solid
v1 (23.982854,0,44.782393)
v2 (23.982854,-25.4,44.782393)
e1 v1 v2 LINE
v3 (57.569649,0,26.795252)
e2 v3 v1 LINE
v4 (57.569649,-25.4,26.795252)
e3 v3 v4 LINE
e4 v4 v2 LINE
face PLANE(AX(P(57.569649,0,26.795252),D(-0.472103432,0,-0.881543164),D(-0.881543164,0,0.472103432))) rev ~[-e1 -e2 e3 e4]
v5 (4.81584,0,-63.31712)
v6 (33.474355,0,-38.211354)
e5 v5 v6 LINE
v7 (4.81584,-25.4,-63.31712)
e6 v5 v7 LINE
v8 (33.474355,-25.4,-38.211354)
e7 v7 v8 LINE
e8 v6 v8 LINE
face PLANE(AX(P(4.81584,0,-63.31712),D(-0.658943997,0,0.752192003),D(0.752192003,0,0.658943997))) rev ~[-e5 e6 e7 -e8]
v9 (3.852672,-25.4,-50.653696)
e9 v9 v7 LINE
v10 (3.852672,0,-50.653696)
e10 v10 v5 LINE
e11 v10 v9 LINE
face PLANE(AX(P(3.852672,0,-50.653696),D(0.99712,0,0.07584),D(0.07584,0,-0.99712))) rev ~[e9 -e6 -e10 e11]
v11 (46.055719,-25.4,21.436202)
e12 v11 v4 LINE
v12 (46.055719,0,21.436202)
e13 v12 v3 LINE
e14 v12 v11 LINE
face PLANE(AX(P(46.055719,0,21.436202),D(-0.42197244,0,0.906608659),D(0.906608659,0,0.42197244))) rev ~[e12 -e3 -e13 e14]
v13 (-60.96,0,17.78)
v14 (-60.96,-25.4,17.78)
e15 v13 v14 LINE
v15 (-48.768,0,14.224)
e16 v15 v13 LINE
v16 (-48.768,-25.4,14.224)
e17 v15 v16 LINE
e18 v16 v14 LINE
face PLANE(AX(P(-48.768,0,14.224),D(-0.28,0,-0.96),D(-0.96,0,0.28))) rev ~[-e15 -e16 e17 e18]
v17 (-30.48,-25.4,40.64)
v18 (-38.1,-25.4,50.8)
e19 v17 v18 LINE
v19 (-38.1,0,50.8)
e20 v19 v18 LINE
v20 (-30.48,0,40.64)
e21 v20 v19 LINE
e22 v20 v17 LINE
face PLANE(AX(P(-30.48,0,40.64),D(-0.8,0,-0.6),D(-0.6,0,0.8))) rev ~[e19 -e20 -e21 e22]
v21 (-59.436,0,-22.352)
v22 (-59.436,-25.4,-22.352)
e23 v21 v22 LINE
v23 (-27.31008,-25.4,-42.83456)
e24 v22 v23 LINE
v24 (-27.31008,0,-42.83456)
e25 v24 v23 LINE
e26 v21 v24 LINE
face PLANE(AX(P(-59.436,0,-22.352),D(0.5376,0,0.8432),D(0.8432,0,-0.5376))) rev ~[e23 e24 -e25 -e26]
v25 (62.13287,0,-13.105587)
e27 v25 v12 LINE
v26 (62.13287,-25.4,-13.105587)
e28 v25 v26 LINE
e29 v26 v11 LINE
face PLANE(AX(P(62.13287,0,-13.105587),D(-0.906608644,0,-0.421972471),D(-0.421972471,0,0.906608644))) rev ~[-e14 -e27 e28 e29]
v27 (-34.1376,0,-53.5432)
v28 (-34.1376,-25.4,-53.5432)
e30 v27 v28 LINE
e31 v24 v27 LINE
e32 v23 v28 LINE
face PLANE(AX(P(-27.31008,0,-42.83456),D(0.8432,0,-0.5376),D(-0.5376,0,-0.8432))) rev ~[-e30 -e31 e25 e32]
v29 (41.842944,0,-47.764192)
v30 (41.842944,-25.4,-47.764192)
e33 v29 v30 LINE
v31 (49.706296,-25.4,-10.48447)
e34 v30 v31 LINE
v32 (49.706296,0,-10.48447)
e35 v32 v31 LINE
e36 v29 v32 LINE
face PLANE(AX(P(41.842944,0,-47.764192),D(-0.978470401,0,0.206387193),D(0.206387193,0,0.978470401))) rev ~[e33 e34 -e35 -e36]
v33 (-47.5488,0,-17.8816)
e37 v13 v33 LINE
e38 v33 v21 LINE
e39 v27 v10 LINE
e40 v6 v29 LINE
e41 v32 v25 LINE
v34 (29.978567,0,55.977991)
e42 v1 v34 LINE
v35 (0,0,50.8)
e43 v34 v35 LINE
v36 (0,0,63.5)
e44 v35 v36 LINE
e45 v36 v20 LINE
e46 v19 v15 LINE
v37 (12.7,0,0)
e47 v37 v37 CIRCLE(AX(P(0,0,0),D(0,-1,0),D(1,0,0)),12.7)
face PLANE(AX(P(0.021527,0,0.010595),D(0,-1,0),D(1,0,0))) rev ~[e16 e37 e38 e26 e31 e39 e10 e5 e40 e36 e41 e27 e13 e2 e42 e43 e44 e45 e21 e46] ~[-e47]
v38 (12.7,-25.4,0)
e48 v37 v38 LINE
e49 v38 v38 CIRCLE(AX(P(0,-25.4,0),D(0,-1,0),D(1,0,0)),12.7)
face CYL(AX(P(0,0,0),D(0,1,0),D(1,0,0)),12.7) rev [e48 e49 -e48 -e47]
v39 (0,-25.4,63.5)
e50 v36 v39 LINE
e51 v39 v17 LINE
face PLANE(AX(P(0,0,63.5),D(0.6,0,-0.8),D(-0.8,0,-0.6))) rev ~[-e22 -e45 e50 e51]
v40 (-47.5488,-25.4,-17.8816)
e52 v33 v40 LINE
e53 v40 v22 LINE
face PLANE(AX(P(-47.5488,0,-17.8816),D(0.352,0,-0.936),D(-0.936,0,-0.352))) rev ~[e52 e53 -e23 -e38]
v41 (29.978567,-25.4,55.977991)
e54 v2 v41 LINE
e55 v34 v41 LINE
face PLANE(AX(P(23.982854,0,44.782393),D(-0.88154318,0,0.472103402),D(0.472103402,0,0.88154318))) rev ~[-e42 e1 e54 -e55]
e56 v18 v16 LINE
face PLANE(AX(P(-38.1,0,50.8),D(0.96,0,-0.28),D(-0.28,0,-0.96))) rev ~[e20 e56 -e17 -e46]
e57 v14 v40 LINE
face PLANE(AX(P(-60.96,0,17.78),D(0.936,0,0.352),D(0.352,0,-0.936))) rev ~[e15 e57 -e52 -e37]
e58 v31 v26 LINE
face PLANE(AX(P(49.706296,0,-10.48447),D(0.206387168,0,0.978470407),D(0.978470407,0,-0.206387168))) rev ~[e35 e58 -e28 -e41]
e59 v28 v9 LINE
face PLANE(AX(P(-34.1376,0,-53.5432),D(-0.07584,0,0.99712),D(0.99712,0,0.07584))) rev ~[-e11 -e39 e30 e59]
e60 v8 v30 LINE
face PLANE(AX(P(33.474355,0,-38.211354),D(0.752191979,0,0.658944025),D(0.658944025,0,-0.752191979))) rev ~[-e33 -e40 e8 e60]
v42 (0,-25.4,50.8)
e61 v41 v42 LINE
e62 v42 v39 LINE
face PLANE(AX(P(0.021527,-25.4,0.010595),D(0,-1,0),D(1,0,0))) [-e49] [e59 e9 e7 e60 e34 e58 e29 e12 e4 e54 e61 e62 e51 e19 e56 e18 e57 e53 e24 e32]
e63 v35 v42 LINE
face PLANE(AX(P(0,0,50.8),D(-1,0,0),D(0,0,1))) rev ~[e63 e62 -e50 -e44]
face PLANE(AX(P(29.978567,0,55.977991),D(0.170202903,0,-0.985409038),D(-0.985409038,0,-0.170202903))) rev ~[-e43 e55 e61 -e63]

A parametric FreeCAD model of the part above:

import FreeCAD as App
import Part
import Sketcher
Q = App.Units.Quantity


def add_polygon(sketch, points):
    """Adds a closed chain of lines whose ends are joined by coincident constraints."""
    first, n = sketch.GeometryCount, len(points)
    for a, b in zip(points, points[1:] + points[:1]):
        sketch.addGeometry(Part.LineSegment(App.Vector(*a, 0), App.Vector(*b, 0)), False)
    for i in range(n):
        sketch.addConstraint(Sketcher.Constraint("Coincident", first + i, 2, first + (i + 1) % n, 1))

doc = App.newDocument("Part")
body = doc.addObject("PartDesign::Body", "Body")

# Sketch on XZ plane
sketch1 = doc.addObject("Sketcher::SketchObject", "Sketch")
body.addObject(sketch1)
sketch1.AttachmentSupport = (doc.XZ_Plane, [""])
sketch1.MapMode = "FlatFace"
add_polygon(sketch1, [(46.055719, 21.436202), (57.569649, 26.795252), (23.982854, 44.782393), (29.978567, 55.977991), (0, 50.8), (0, 63.5), (-30.48, 40.64), (-38.1, 50.8), (-48.768, 14.224), (-60.96, 17.78), (-47.5488, -17.8816), (-59.436, -22.352), (-27.31008, -42.83456), (-34.1376, -53.5432), (3.852672, -50.653696), (4.81584, -63.31712), (33.474355, -38.211354), (41.842944, -47.764192), (49.706296, -10.48447), (62.13287, -13.105587)])  # lines 0-19
sketch1.addGeometry(Part.Circle(App.Vector(0, 0, 0), App.Vector(0, 0, 1), 12.7), False)  # 20
sketch1.addConstraint([
    Sketcher.Constraint("Vertical", 4),
    Sketcher.Constraint("Coincident", 20, 3, -1, 1),
    Sketcher.Constraint("PointOnObject", 3, 2, -2),
    Sketcher.Constraint("Diameter", 20, Q("1 in")),
    Sketcher.Constraint("DistanceY", 4, 1, 4, 2, Q("0.5 in")),
    Sketcher.Constraint("DistanceY", -1, 1, 3, 2, Q("2 in")),
    Sketcher.Constraint("DistanceY", -1, 1, 6, 2, Q("2 in")),
    Sketcher.Constraint("Distance", 0, Q("0.5 in")),
    Sketcher.Constraint("Distance", 1, Q("1.5 in")),
    Sketcher.Constraint("Distance", 2, Q("0.5 in")),
    Sketcher.Constraint("Distance", 5, Q("1.5 in")),
    Sketcher.Constraint("Distance", 6, Q("0.5 in")),
    Sketcher.Constraint("Distance", 7, Q("1.5 in")),
    Sketcher.Constraint("Distance", 8, Q("0.5 in")),
    Sketcher.Constraint("Distance", 9, Q("1.5 in")),
    Sketcher.Constraint("Distance", 10, Q("0.5 in")),
    Sketcher.Constraint("Distance", 11, Q("1.5 in")),
    Sketcher.Constraint("Distance", 12, Q("0.5 in")),
    Sketcher.Constraint("Distance", 13, Q("1.5 in")),
    Sketcher.Constraint("Distance", 14, Q("0.5 in")),
    Sketcher.Constraint("Distance", 15, Q("1.5 in")),
    Sketcher.Constraint("Distance", 16, Q("0.5 in")),
    Sketcher.Constraint("Distance", 17, Q("1.5 in")),
    Sketcher.Constraint("Distance", 18, Q("0.5 in")),
    Sketcher.Constraint("Distance", 19, Q("1.5 in")),
    Sketcher.Constraint("DistanceX", 5, 2, -1, 1, Q("1.2 in")),
    Sketcher.Constraint("DistanceX", 8, 2, -1, 1, Q("2.4 in")),
    Sketcher.Constraint("DistanceY", -1, 1, 8, 2, Q("0.7 in")),
    Sketcher.Constraint("DistanceX", 10, 2, -1, 1, Q("2.34 in")),
    Sketcher.Constraint("DistanceY", 10, 2, -1, 1, Q("0.88 in")),
    Sketcher.Constraint("DistanceX", 12, 2, -1, 1, Q("1.344 in")),
    Sketcher.Constraint("DistanceY", 12, 2, -1, 1, Q("2.108 in")),
    Sketcher.Constraint("DistanceX", -1, 1, 14, 2, Q("0.1896 in")),
    Sketcher.Constraint("DistanceY", 14, 2, -1, 1, Q("2.4928 in")),
    Sketcher.Constraint("DistanceY", 1, 2, 2, 2, Q("11.195598 mm")),
    Sketcher.Constraint("Distance", 3, Q("30.42246 mm")),
    Sketcher.Constraint("DistanceX", -1, 1, 0, 2, Q("57.569649 mm")),
    Sketcher.Constraint("DistanceY", -1, 1, 2, 2, Q("55.977991 mm")),
    Sketcher.Constraint("DistanceY", 17, 2, -1, 1, Q("10.48447 mm")),
    Sketcher.Constraint("DistanceX", -1, 1, 18, 2, Q("62.13287 mm")),
    Sketcher.Constraint("DistanceX", -1, 1, 19, 2, Q("46.055719 mm")),
    Sketcher.Constraint("DistanceY", 13, 2, 15, 2, Q("12.442342 mm")),
])
pad1 = doc.addObject("PartDesign::Pad", "Pad")
body.addObject(pad1)
pad1.Profile = sketch1
pad1.Length = Q("1 in")

doc.recompute()
